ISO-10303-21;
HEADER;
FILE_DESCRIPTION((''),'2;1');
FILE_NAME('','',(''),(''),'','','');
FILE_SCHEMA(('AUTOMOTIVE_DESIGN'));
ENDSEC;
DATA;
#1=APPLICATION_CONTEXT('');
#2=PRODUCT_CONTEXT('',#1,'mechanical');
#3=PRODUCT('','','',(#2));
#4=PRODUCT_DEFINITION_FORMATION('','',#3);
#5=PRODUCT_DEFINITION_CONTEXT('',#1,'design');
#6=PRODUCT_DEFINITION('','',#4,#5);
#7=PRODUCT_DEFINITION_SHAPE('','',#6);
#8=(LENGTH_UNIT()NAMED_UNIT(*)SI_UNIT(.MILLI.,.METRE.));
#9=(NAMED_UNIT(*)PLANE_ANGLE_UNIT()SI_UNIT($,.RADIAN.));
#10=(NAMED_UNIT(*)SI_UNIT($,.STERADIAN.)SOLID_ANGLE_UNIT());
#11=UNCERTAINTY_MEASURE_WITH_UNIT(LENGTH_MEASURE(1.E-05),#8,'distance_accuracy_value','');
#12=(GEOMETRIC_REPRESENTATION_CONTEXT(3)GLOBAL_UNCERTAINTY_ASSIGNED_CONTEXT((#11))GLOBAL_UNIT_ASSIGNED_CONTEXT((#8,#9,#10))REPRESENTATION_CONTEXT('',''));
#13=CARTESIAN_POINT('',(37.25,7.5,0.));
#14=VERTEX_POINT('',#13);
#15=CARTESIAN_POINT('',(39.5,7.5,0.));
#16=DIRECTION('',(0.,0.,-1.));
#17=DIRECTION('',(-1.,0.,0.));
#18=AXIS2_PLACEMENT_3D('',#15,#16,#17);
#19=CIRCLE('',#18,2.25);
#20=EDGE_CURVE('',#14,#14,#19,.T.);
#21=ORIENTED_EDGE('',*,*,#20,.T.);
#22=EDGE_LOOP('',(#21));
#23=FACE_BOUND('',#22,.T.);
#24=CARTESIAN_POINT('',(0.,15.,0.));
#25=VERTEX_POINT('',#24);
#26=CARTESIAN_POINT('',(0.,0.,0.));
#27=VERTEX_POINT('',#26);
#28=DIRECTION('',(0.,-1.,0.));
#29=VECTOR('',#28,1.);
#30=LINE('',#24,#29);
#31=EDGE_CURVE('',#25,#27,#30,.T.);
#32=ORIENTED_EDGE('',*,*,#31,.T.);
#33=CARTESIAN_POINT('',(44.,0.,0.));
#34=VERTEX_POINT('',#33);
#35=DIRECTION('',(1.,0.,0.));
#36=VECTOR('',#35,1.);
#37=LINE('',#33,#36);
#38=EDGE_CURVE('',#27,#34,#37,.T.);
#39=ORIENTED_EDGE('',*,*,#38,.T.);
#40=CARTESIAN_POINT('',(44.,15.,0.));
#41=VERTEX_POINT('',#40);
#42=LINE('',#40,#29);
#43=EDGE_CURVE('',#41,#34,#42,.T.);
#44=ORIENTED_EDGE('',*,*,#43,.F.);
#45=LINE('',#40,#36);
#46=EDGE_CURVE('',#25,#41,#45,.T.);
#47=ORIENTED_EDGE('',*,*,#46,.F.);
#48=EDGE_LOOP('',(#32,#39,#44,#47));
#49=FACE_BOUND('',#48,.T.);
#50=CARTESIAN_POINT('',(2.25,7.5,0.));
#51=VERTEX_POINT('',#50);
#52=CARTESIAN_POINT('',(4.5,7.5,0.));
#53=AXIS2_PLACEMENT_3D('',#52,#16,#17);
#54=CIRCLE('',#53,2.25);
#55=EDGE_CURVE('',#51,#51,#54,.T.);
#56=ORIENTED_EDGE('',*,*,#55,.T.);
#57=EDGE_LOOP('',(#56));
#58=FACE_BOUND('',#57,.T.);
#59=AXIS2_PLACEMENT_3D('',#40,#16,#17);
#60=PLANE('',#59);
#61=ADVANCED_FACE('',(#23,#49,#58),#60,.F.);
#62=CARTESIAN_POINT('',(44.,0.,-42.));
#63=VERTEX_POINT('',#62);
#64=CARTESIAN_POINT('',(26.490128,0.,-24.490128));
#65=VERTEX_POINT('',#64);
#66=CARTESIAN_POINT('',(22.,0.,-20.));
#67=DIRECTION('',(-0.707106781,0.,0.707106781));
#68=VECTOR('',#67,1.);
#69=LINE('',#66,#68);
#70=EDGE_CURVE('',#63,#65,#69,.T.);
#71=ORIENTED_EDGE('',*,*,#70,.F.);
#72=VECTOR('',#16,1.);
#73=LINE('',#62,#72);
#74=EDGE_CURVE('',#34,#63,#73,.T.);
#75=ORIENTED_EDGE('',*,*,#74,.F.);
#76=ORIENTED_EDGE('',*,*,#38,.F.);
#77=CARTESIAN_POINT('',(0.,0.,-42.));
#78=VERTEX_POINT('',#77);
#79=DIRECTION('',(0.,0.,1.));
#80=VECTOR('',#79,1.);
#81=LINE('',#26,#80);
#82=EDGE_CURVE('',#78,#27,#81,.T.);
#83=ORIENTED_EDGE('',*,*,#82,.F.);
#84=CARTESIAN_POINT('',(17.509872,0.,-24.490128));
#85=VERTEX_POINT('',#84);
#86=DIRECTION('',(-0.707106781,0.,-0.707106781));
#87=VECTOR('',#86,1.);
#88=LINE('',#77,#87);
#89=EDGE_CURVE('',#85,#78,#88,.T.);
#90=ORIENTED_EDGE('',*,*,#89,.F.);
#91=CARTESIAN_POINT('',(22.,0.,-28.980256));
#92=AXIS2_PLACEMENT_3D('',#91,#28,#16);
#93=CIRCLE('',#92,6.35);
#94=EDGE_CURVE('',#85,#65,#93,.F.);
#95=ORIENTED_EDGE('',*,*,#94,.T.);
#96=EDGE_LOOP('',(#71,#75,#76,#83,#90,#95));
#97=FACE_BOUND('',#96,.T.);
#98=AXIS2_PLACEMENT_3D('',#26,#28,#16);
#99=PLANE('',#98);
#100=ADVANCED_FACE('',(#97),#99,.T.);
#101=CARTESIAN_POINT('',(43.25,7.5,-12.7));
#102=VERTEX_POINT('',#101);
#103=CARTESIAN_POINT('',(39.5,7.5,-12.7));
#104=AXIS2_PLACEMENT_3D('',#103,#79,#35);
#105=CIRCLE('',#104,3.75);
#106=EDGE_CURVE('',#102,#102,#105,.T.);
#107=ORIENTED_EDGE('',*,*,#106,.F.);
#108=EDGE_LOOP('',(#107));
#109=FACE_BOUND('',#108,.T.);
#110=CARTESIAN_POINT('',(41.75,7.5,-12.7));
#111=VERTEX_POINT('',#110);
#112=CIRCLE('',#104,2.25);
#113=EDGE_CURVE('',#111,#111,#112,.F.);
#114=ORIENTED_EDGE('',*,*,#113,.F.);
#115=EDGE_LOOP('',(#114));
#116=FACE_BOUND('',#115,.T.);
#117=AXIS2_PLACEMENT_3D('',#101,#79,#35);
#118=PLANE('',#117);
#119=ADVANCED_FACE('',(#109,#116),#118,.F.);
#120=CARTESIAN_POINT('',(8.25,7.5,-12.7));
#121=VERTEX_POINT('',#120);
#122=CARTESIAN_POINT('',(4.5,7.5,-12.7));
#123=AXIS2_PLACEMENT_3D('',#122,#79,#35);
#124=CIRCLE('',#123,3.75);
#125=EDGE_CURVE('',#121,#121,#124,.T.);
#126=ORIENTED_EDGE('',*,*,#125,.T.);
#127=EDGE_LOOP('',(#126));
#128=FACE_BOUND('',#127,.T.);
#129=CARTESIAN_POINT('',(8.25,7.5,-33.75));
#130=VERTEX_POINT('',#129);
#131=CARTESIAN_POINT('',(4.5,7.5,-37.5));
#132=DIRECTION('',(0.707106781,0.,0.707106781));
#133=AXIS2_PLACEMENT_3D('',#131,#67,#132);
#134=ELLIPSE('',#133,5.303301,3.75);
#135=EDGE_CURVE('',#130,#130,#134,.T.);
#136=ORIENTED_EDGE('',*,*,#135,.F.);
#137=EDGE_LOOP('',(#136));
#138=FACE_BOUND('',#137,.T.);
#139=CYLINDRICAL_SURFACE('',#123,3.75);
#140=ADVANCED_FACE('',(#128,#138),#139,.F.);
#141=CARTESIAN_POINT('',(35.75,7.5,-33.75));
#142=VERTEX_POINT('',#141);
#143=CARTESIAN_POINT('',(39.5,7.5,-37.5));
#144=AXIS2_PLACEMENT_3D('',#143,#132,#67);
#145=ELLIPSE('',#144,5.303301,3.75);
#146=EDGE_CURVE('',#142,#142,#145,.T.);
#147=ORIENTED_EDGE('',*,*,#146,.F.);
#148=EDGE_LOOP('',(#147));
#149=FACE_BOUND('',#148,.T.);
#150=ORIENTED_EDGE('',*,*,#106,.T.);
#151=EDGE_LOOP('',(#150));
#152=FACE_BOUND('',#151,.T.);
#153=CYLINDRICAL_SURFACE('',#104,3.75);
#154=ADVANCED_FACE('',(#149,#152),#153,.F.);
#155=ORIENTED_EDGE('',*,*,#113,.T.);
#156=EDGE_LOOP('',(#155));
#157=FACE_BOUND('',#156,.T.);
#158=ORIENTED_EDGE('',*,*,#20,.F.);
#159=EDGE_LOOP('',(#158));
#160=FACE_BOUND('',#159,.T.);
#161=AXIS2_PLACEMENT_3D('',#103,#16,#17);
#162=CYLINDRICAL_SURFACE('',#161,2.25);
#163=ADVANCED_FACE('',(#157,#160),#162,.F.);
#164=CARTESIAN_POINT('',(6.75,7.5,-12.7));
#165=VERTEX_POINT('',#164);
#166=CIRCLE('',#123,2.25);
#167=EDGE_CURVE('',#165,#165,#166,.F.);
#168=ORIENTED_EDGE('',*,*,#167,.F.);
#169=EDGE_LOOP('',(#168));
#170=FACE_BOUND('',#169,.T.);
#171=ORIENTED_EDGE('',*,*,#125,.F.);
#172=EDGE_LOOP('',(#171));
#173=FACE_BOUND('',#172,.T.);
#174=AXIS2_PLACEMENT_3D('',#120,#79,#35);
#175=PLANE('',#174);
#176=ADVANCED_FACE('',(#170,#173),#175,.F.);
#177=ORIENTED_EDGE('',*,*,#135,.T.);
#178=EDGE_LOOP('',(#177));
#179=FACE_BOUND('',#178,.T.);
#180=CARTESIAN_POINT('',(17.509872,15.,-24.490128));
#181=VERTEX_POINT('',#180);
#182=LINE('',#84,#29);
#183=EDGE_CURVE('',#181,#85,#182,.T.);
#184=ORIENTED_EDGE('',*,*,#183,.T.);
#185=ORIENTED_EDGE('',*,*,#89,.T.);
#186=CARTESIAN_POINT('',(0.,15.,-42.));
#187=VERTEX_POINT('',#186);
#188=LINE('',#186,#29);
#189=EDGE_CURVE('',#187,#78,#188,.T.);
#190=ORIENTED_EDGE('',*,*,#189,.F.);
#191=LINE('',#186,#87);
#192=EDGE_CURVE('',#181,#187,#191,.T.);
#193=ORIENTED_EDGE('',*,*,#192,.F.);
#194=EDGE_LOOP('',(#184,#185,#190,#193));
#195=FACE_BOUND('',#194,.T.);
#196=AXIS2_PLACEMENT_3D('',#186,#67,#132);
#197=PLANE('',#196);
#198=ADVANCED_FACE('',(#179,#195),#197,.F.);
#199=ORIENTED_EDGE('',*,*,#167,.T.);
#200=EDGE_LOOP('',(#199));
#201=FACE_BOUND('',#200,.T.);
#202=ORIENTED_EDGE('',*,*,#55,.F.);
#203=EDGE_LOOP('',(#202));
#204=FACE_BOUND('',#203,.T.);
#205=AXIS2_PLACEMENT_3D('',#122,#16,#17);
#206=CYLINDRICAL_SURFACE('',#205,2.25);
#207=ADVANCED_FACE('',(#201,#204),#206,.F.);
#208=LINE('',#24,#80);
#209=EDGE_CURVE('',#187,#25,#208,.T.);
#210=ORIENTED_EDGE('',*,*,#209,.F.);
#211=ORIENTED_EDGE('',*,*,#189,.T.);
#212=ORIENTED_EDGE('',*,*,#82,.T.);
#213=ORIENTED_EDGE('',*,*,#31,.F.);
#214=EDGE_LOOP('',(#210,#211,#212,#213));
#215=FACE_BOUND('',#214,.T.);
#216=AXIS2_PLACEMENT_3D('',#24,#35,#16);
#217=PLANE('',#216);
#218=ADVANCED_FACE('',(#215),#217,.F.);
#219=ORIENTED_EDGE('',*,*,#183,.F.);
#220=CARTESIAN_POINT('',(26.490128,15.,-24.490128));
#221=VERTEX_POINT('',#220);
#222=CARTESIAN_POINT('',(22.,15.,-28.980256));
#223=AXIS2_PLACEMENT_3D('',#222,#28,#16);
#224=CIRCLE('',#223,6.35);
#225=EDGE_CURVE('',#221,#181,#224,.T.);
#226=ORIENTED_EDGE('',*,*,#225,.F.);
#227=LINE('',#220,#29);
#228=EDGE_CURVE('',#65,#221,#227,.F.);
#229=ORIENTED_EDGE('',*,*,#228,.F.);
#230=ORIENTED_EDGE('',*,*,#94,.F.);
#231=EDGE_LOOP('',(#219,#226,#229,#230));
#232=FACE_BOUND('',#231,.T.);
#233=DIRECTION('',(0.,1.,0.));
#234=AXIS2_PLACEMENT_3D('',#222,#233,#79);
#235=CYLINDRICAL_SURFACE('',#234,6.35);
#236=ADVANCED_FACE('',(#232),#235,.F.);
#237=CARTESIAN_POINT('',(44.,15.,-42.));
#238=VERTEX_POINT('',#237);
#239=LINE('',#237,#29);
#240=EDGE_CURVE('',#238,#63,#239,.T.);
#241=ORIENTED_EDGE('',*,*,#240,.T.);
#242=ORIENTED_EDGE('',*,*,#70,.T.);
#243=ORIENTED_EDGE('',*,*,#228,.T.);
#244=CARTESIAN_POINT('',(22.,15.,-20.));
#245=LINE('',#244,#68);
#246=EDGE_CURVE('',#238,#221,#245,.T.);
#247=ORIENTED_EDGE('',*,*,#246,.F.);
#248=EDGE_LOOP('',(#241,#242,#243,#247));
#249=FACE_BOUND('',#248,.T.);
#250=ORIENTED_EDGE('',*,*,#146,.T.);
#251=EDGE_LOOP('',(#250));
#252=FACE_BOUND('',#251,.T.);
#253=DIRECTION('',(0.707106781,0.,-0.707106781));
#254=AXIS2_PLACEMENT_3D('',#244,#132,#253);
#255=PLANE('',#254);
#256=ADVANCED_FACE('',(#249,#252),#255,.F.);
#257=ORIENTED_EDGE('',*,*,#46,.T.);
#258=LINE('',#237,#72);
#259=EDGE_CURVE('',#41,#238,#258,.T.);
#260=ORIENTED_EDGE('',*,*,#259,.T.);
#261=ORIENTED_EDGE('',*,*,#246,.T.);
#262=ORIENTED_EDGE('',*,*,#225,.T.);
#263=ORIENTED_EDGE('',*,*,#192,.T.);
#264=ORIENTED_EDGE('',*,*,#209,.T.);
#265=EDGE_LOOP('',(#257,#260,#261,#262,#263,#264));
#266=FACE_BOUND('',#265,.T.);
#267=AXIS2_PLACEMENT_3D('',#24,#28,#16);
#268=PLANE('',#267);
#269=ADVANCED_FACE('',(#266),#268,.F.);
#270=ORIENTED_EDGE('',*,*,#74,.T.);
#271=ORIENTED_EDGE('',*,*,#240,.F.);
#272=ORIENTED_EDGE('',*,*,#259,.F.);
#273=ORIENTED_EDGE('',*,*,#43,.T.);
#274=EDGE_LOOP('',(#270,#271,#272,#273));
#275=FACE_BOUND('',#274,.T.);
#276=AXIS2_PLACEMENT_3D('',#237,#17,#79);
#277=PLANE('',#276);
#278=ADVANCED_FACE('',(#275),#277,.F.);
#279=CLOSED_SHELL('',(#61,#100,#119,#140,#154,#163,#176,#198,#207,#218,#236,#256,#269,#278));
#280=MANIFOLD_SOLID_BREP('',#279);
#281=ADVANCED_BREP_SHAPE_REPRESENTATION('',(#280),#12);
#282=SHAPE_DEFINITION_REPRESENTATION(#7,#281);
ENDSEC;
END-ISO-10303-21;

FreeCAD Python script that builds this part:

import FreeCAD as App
import Part
import Sketcher
from FreeCAD import Vector
Q = App.Units.Quantity


def edges_at(feature, points):
    """Names of the edges that pass closest to the given points."""
    edges = feature.Shape.Edges
    near = lambda p: min(range(len(edges)), key=lambda i: edges[i].distToShape(Part.Vertex(*p))[0])
    return sorted({f"Edge{near(p) + 1}" for p in points})


def add_polygon(sketch, points):
    """Adds a closed chain of lines whose ends are joined by coincident constraints."""
    first, n = sketch.GeometryCount, len(points)
    for a, b in zip(points, points[1:] + points[:1]):
        sketch.addGeometry(Part.LineSegment(App.Vector(*a, 0), App.Vector(*b, 0)), False)
    for i in range(n):
        sketch.addConstraint(Sketcher.Constraint("Coincident", first + i, 2, first + (i + 1) % n, 1))

doc = App.newDocument("Part")
body = doc.addObject("PartDesign::Body", "Body")

# Sketch on XZ plane
sketch1 = doc.addObject("Sketcher::SketchObject", "Sketch")
body.addObject(sketch1)
sketch1.AttachmentSupport = (doc.XZ_Plane, [""])
sketch1.MapMode = "FlatFace"
add_polygon(sketch1, [(0, -42), (0, 0), (44, 0), (44, -42), (22, -20)])  # lines 0-4
sketch1.addConstraint([
    Sketcher.Constraint("Vertical", 0),
    Sketcher.Constraint("Horizontal", 1),
    Sketcher.Constraint("Vertical", 2),
    Sketcher.Constraint("Coincident", 0, 2, -1, 1),
    Sketcher.Constraint("Perpendicular", 3, 4),
    Sketcher.Constraint("Horizontal", 2, 2, 4, 2),
    Sketcher.Constraint("Equal", 3, 4),
    Sketcher.Constraint("DistanceX", 1, 1, 1, 2, Q("44 mm")),
    Sketcher.Constraint("DistanceY", 0, 1, 0, 2, Q("42 mm")),
])
pad1 = doc.addObject("PartDesign::Pad", "Pad")
body.addObject(pad1)
pad1.Profile = sketch1
pad1.Length = 15
pad1.Reversed = True

# Sketch on YZ plane
sketch2 = doc.addObject("Sketcher::SketchObject", "Sketch001")
body.addObject(sketch2)
sketch2.AttachmentSupport = (doc.YZ_Plane, [""])
sketch2.MapMode = "FlatFace"
sketch2.AttachmentOffset = App.Placement(Vector(0, 0, 39.5), App.Rotation())
add_polygon(sketch2, [(7.5, 0), (7.5, -12.7), (9.75, -12.7), (9.75, 0)])  # lines 0-3
sketch2.addGeometry(Part.LineSegment(Vector(7.5, -12.7, 0), Vector(7.5, 0, 0)), True)  # axis
sketch2.addConstraint([
    Sketcher.Constraint("Vertical", 0),
    Sketcher.Constraint("Horizontal", 1),
    Sketcher.Constraint("Vertical", 2),
    Sketcher.Constraint("Horizontal", 3),
    Sketcher.Constraint("Vertical", 4),
    Sketcher.Constraint("Coincident", 4, 1, 0, 2),
    Sketcher.Constraint("PointOnObject", 2, 2, -1),
    Sketcher.Constraint("PointOnObject", 4, 2, -1),
    Sketcher.Constraint("DistanceY", 0, 2, 0, 1, Q("12.7 mm")),
    Sketcher.Constraint("DistanceX", 1, 1, 1, 2, Q("2.25 mm")),
    Sketcher.Constraint("DistanceX", -1, 1, 0, 2, Q("7.5 mm")),
])
groove = doc.addObject("PartDesign::Groove", "Groove")
body.addObject(groove)
groove.Profile = sketch2
groove.ReferenceAxis = (sketch2, ["Axis0"])
groove.Angle = 360
doc.recompute()

linearpattern = doc.addObject("PartDesign::LinearPattern", "LinearPattern")
body.addObject(linearpattern)
linearpattern.Originals = [groove]
linearpattern.Direction = (doc.X_Axis, [""])
linearpattern.Mode = "offset"
linearpattern.Offset = 35
linearpattern.Occurrences = 2
linearpattern.Reversed = True
body.Tip = linearpattern

# Sketch on YZ plane
sketch3 = doc.addObject("Sketcher::SketchObject", "Sketch002")
body.addObject(sketch3)
sketch3.AttachmentSupport = (doc.YZ_Plane, [""])
sketch3.MapMode = "FlatFace"
sketch3.AttachmentOffset = App.Placement(Vector(0, 0, 39.5), App.Rotation())
add_polygon(sketch3, [(7.5, -42), (7.5, -12.7), (3.75, -12.7), (3.75, -42)])  # lines 0-3
sketch3.addGeometry(Part.LineSegment(Vector(7.5, -12.7, 0), Vector(7.5, -42, 0)), True)  # axis
sketch3.addConstraint([
    Sketcher.Constraint("Vertical", 0),
    Sketcher.Constraint("Horizontal", 1),
    Sketcher.Constraint("Vertical", 2),
    Sketcher.Constraint("Horizontal", 3),
    Sketcher.Constraint("Vertical", 4),
    Sketcher.Constraint("Coincident", 4, 1, 0, 2),
    Sketcher.Constraint("Horizontal", 2, 2, 4, 2),
    Sketcher.Constraint("DistanceY", 0, 1, 0, 2, Q("29.3 mm")),
    Sketcher.Constraint("DistanceY", 2, 2, -1, 1, Q("42 mm")),
    Sketcher.Constraint("DistanceX", 1, 2, 1, 1, Q("3.75 mm")),
    Sketcher.Constraint("DistanceX", -1, 1, 0, 2, Q("7.5 mm")),
])
groove2 = doc.addObject("PartDesign::Groove", "Groove001")
body.addObject(groove2)
groove2.Profile = sketch3
groove2.ReferenceAxis = (sketch3, ["Axis0"])
groove2.Angle = 360
doc.recompute()

linearpattern2 = doc.addObject("PartDesign::LinearPattern", "LinearPattern001")
body.addObject(linearpattern2)
linearpattern2.Originals = [groove2]
linearpattern2.Direction = (doc.X_Axis, [""])
linearpattern2.Mode = "offset"
linearpattern2.Offset = 35
linearpattern2.Occurrences = 2
linearpattern2.Reversed = True
body.Tip = linearpattern2
doc.recompute()

fillet = doc.addObject("PartDesign::Fillet", "Fillet")
body.addObject(fillet)
fillet.Base = (linearpattern2, edges_at(linearpattern2, [(22, 7.5, -20)]))
fillet.Radius = 6.35

doc.recompute()
